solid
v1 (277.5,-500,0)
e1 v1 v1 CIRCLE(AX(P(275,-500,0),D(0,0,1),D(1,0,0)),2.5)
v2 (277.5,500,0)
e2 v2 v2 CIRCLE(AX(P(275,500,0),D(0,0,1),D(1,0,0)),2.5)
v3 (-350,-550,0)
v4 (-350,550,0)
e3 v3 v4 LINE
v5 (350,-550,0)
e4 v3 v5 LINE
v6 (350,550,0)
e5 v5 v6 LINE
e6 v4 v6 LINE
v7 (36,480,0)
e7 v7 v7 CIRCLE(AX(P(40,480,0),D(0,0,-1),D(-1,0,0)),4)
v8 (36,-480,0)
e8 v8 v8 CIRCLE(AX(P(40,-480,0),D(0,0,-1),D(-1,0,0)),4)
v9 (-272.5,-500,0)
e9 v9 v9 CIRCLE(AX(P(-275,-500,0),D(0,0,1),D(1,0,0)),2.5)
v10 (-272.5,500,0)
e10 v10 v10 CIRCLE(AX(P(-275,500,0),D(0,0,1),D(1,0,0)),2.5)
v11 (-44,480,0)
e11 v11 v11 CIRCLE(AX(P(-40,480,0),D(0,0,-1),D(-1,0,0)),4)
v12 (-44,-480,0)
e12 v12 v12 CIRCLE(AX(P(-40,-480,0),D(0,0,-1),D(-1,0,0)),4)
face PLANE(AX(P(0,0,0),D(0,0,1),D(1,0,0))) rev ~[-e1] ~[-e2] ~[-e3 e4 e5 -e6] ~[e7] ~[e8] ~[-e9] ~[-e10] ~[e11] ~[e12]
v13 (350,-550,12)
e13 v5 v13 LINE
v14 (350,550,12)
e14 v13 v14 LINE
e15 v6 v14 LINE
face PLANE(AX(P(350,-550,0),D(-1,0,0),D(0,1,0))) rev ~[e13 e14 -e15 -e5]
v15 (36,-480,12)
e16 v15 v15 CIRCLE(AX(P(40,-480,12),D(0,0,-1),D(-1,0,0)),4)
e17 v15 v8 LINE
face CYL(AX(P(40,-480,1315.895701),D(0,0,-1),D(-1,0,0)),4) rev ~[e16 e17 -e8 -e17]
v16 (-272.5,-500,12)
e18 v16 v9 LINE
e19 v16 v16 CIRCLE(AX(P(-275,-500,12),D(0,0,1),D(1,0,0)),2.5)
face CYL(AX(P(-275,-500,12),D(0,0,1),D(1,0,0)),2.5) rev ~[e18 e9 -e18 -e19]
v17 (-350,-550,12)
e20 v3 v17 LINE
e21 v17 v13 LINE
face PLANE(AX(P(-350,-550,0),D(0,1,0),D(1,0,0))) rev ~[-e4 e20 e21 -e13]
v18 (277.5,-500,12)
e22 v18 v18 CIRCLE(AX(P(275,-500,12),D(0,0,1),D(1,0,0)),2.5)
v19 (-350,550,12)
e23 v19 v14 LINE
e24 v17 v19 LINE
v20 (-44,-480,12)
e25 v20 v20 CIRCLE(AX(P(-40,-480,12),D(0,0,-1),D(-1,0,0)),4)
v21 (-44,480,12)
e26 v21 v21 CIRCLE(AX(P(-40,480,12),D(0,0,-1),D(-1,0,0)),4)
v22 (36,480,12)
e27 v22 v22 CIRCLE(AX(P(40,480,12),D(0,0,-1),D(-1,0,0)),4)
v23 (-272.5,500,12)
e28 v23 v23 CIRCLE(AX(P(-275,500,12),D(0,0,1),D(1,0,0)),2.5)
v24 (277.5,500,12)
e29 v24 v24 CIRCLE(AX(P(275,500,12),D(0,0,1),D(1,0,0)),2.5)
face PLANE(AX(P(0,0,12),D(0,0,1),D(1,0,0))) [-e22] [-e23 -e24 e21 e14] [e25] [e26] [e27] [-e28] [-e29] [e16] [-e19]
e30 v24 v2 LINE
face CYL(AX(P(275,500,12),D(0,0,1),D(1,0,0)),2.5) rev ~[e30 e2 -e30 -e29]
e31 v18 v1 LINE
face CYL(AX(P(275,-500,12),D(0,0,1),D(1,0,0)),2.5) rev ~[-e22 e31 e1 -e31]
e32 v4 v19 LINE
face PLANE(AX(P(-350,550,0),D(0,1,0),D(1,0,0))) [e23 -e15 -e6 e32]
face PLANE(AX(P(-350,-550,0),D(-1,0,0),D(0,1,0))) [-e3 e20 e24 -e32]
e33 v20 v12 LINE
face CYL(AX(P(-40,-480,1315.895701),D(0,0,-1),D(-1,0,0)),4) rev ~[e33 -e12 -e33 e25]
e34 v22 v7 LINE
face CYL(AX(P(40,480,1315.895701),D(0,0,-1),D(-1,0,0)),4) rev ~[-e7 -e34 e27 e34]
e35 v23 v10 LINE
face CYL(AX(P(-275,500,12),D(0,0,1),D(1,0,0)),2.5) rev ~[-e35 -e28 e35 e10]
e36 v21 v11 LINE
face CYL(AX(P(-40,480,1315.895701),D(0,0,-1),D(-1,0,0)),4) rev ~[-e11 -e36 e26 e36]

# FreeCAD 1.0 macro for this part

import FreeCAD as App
import Part
import Sketcher


def add_polygon(sketch, points):
    """Adds a closed chain of lines whose ends are joined by coincident constraints."""
    first, n = sketch.GeometryCount, len(points)
    for a, b in zip(points, points[1:] + points[:1]):
        sketch.addGeometry(Part.LineSegment(App.Vector(*a, 0), App.Vector(*b, 0)), False)
    for i in range(n):
        sketch.addConstraint(Sketcher.Constraint("Coincident", first + i, 2, first + (i + 1) % n, 1))

doc = App.newDocument("Part")
params = doc.addObject("Spreadsheet::Sheet", "Params")
for row, (alias, value) in enumerate([
    ("sketch1_width", "700 mm"),
    ("sketch1_height", "1100 mm"),
    ("pad1_length", "12 mm"),
    ("sketch2_diameter", "5 mm"),
    ("sketch3_diameter", "8 mm"),
    ("hole_diameter", "8 mm"),
], start=1):
    params.set(f"A{row}", alias)
    params.set(f"B{row}", "=" + value)
    params.setAlias(f"B{row}", alias)

body = doc.addObject("PartDesign::Body", "Body")

# Sketch on XY plane
sketch1 = body.newObject("Sketcher::SketchObject", "Sketch")
sketch1.AttachmentSupport = (doc.getObject("XY_Plane"), [""])
sketch1.MapMode = "FlatFace"
add_polygon(sketch1, [(-350, 550), (-350, -550), (350, -550), (350, 550)])  # lines 0-3
sketch1.addConstraint([
    Sketcher.Constraint("Vertical", 0),
    Sketcher.Constraint("Horizontal", 1),
    Sketcher.Constraint("Vertical", 2),
    Sketcher.Constraint("Horizontal", 3),
    Sketcher.Constraint("Symmetric", 0, 2, 2, 2, -1, 1),
    Sketcher.Constraint("DistanceX", 1, 1, 1, 2, 700.0),
    Sketcher.Constraint("DistanceY", 0, 2, 0, 1, 1100.0),
])
sketch1.setExpression("Constraints[9]", "Params.sketch1_width")
sketch1.setExpression("Constraints[10]", "Params.sketch1_height")
pad1 = body.newObject("PartDesign::Pad", "Pad")
pad1.Profile = sketch1
pad1.setExpression("Length", "Params.pad1_length")

# Sketch on XY plane
sketch2 = body.newObject("Sketcher::SketchObject", "Sketch001")
sketch2.AttachmentSupport = (doc.getObject("XY_Plane"), [""])
sketch2.MapMode = "FlatFace"
sketch2.AttachmentOffset = App.Placement(App.Vector(0, 0, 12), App.Rotation())
sketch2.addGeometry([
    Part.Circle(App.Vector(-275, -500, 0), App.Vector(0, 0, 1), 2.5),
    Part.Circle(App.Vector(275, -500, 0), App.Vector(0, 0, 1), 2.5),
    Part.Circle(App.Vector(-275, 500, 0), App.Vector(0, 0, 1), 2.5),
    Part.Circle(App.Vector(275, 500, 0), App.Vector(0, 0, 1), 2.5),
], False)
sketch2.addConstraint([
    Sketcher.Constraint("Equal", 0, 1),
    Sketcher.Constraint("Equal", 1, 2),
    Sketcher.Constraint("Equal", 2, 3),
    Sketcher.Constraint("Symmetric", 1, 3, 2, 3, -1, 1),
    Sketcher.Constraint("Symmetric", 0, 3, 3, 3, -1, 1),
    Sketcher.Constraint("Symmetric", 0, 3, 1, 3, -2),
    Sketcher.Constraint("Diameter", 0, 5.0),
    Sketcher.Constraint("DistanceX", 0, 3, -1, 1, 275.0),
    Sketcher.Constraint("DistanceY", 0, 3, -1, 1, 500.0),
])
sketch2.setExpression("Constraints[6]", "Params.sketch2_diameter")
pocket1 = body.newObject("PartDesign::Pocket", "Pocket")
pocket1.Profile = sketch2
pocket1.Type = "ThroughAll"

# Sketch on XY plane
sketch3 = body.newObject("Sketcher::SketchObject", "Sketch002")
sketch3.AttachmentSupport = (doc.getObject("XY_Plane"), [""])
sketch3.MapMode = "FlatFace"
sketch3.AttachmentOffset = App.Placement(App.Vector(0, 0, 12), App.Rotation())
sketch3.addGeometry([
    Part.Circle(App.Vector(40, 480, 0), App.Vector(0, 0, 1), 4),
    Part.Circle(App.Vector(-40, 480, 0), App.Vector(0, 0, 1), 4),
    Part.Circle(App.Vector(40, -480, 0), App.Vector(0, 0, 1), 4),
    Part.Circle(App.Vector(-40, -480, 0), App.Vector(0, 0, 1), 4),
], False)
sketch3.addConstraint([
    Sketcher.Constraint("Equal", 0, 1),
    Sketcher.Constraint("Equal", 1, 2),
    Sketcher.Constraint("Equal", 2, 3),
    Sketcher.Constraint("Symmetric", 1, 3, 2, 3, -1, 1),
    Sketcher.Constraint("Symmetric", 0, 3, 3, 3, -1, 1),
    Sketcher.Constraint("Symmetric", 0, 3, 1, 3, -2),
    Sketcher.Constraint("Diameter", 0, 8.0),
    Sketcher.Constraint("DistanceX", -1, 1, 0, 3, 40.0),
    Sketcher.Constraint("DistanceY", -1, 1, 0, 3, 480.0),
])
sketch3.setExpression("Constraints[6]", "Params.sketch3_diameter")
doc.recompute()
hole = body.newObject("PartDesign::Hole", "Hole")
hole.Profile = sketch3
hole.ThreadType = "None"
hole.setExpression("Diameter", "Params.hole_diameter")
hole.DepthType = "ThroughAll"

doc.recompute()
